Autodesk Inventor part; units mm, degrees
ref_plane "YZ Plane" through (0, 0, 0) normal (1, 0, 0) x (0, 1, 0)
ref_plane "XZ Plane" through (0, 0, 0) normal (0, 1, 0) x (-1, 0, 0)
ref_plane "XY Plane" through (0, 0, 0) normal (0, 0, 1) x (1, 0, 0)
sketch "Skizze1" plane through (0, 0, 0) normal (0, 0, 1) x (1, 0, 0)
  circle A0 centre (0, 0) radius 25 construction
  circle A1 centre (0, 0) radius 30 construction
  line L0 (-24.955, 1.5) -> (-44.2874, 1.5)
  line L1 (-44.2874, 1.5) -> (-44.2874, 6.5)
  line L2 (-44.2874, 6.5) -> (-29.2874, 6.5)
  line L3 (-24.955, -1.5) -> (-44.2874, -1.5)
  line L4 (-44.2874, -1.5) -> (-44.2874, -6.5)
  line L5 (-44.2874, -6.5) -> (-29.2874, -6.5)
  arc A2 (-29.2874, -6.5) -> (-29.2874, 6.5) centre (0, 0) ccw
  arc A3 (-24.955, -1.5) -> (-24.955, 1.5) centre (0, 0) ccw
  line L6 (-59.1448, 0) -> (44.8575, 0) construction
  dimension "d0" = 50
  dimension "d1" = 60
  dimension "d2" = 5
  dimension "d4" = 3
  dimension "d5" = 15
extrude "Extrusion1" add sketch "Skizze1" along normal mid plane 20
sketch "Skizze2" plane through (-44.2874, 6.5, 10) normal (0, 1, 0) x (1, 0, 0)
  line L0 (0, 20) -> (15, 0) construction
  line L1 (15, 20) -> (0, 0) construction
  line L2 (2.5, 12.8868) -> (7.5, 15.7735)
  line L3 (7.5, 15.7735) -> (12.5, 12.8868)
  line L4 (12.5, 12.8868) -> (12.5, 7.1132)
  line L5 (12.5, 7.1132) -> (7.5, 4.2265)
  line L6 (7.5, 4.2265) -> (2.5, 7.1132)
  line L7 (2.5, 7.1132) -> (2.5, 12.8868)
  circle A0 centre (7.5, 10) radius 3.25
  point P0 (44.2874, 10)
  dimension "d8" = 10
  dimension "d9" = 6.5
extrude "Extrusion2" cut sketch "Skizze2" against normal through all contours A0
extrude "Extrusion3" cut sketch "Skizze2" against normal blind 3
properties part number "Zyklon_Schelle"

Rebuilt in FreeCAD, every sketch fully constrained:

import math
import FreeCAD as App
import Part
import Sketcher

V = App.Vector
Q = App.Units.Quantity


def add_polygon(sketch, points):
    """Adds a closed chain of lines whose ends are joined by coincident constraints."""
    first, n = sketch.GeometryCount, len(points)
    for a, b in zip(points, points[1:] + points[:1]):
        sketch.addGeometry(Part.LineSegment(App.Vector(*a, 0), App.Vector(*b, 0)), False)
    for i in range(n):
        sketch.addConstraint(Sketcher.Constraint("Coincident", first + i, 2, first + (i + 1) % n, 1))

doc = App.newDocument("Part")
body = doc.addObject("PartDesign::Body", "Body")

# Sketch on XY plane
sketch1 = body.newObject("Sketcher::SketchObject", "Sketch")
sketch1.AttachmentSupport = (doc.getObject("XY_Plane"), [""])
sketch1.MapMode = "FlatFace"
sketch1.addGeometry(Part.LineSegment(V(-44.3, 1.5, 0), V(-25, 1.5, 0)), False)
sketch1.addGeometry(Part.ArcOfCircle(Part.Circle(V(0, 0, 0), V(0, 0, 1), 25), math.radians(-177), math.radians(177)), False)
sketch1.addGeometry(Part.LineSegment(V(-25, -1.5, 0), V(-44.3, -1.5, 0)), False)
sketch1.addGeometry(Part.LineSegment(V(-44.3, -1.5, 0), V(-44.3, -6.5, 0)), False)
sketch1.addGeometry(Part.LineSegment(V(-44.3, -6.5, 0), V(-29.3, -6.5, 0)), False)
sketch1.addGeometry(Part.ArcOfCircle(Part.Circle(V(0, 0, 0), V(0, 0, 1), 30), math.radians(-167), math.radians(167)), False)
sketch1.addGeometry(Part.LineSegment(V(-29.3, 6.5, 0), V(-44.3, 6.5, 0)), False)
sketch1.addGeometry(Part.LineSegment(V(-44.3, 6.5, 0), V(-44.3, 1.5, 0)), False)
sketch1.addConstraint(Sketcher.Constraint("Coincident", 0, 2, 1, 2))
sketch1.addConstraint(Sketcher.Constraint("Coincident", 1, 1, 2, 1))
sketch1.addConstraint(Sketcher.Constraint("Coincident", 2, 2, 3, 1))
sketch1.addConstraint(Sketcher.Constraint("Coincident", 3, 2, 4, 1))
sketch1.addConstraint(Sketcher.Constraint("Coincident", 4, 2, 5, 1))
sketch1.addConstraint(Sketcher.Constraint("Coincident", 5, 2, 6, 1))
sketch1.addConstraint(Sketcher.Constraint("Coincident", 6, 2, 7, 1))
sketch1.addConstraint(Sketcher.Constraint("Coincident", 7, 2, 0, 1))
sketch1.addConstraint(Sketcher.Constraint("Horizontal", 0))
sketch1.addConstraint(Sketcher.Constraint("Horizontal", 2))
sketch1.addConstraint(Sketcher.Constraint("Vertical", 3))
sketch1.addConstraint(Sketcher.Constraint("Horizontal", 4))
sketch1.addConstraint(Sketcher.Constraint("Horizontal", 6))
sketch1.addConstraint(Sketcher.Constraint("Vertical", 7))
sketch1.addConstraint(Sketcher.Constraint("Coincident", 1, 3, -1, 1))
sketch1.addConstraint(Sketcher.Constraint("Coincident", 5, 3, -1, 1))
sketch1.addConstraint(Sketcher.Constraint("Symmetric", 3, 2, 6, 2, -1))
sketch1.addConstraint(Sketcher.Constraint("Vertical", 0, 2, 1, 1))
sketch1.addConstraint(Sketcher.Constraint("Radius", 1, 25.0))
sketch1.addConstraint(Sketcher.Constraint("Radius", 5, 30.0))
sketch1.addConstraint(Sketcher.Constraint("DistanceX", 4, 1, 4, 2, 15.0))
sketch1.addConstraint(Sketcher.Constraint("DistanceY", 3, 2, 3, 1, 5.0))
sketch1.addConstraint(Sketcher.Constraint("DistanceY", 1, 1, 0, 2, 3.0))
pad1 = body.newObject("PartDesign::Pad", "Pad")
pad1.Profile = sketch1
pad1.Length = 20
pad1.Midplane = True

# Sketch on XZ plane
sketch2 = body.newObject("Sketcher::SketchObject", "Sketch001")
sketch2.AttachmentSupport = (doc.getObject("XZ_Plane"), [""])
sketch2.MapMode = "FlatFace"
sketch2.AttachmentOffset = App.Placement(V(0, 0, -6.5), App.Rotation())
sketch2.addGeometry(Part.Circle(V(-36.8, 0, 0), V(0, 0, 1), 3.2), False)
sketch2.addConstraint(Sketcher.Constraint("PointOnObject", 0, 3, -1))
sketch2.addConstraint(Sketcher.Constraint("Diameter", 0, 6.5))
sketch2.addConstraint(Sketcher.Constraint("DistanceX", 0, 3, -1, 1, 36.7874))
pocket1 = body.newObject("PartDesign::Pocket", "Pocket")
pocket1.Profile = sketch2
pocket1.Type = "ThroughAll"
pocket1.Reversed = True

# Sketch on XZ plane
sketch3 = body.newObject("Sketcher::SketchObject", "Sketch002")
sketch3.AttachmentSupport = (doc.getObject("XZ_Plane"), [""])
sketch3.MapMode = "FlatFace"
sketch3.AttachmentOffset = App.Placement(V(0, 0, -6.5), App.Rotation())
add_polygon(sketch3, [(-36.8, -5.8), (-41.8, -2.9), (-41.8, 2.9), (-36.8, 5.8), (-31.8, 2.9), (-31.8, -2.9)])  # lines 0-5
sketch3.addGeometry(Part.Circle(V(-36.8, 0, 0), V(0, 0, 1), 3.2), False)  # 6
sketch3.addConstraint(Sketcher.Constraint("Vertical", 1))
sketch3.addConstraint(Sketcher.Constraint("Vertical", 4))
sketch3.addConstraint(Sketcher.Constraint("Symmetric", 2, 2, 5, 2, -1))
sketch3.addConstraint(Sketcher.Constraint("PointOnObject", 6, 3, -1))
sketch3.addConstraint(Sketcher.Constraint("Parallel", 0, 3))
sketch3.addConstraint(Sketcher.Constraint("Parallel", 2, 5))
sketch3.addConstraint(Sketcher.Constraint("Horizontal", 1, 2, 3, 2))
sketch3.addConstraint(Sketcher.Constraint("Horizontal", 0, 2, 4, 2))
sketch3.addConstraint(Sketcher.Constraint("Vertical", 6, 3, 2, 2))
sketch3.addConstraint(Sketcher.Constraint("Diameter", 6, 6.5))
sketch3.addConstraint(Sketcher.Constraint("DistanceX", 1, 2, 3, 2, 10.0))
sketch3.addConstraint(Sketcher.Constraint("Angle", 0, Q("150.0004 deg")))
sketch3.addConstraint(Sketcher.Constraint("DistanceY", 1, 1, 1, 2, 5.7736))
sketch3.addConstraint(Sketcher.Constraint("DistanceX", 6, 3, -1, 1, 36.7874))
pocket2 = body.newObject("PartDesign::Pocket", "Pocket001")
pocket2.Profile = sketch3
pocket2.Length = 3
pocket2.Reversed = True

doc.recompute()
